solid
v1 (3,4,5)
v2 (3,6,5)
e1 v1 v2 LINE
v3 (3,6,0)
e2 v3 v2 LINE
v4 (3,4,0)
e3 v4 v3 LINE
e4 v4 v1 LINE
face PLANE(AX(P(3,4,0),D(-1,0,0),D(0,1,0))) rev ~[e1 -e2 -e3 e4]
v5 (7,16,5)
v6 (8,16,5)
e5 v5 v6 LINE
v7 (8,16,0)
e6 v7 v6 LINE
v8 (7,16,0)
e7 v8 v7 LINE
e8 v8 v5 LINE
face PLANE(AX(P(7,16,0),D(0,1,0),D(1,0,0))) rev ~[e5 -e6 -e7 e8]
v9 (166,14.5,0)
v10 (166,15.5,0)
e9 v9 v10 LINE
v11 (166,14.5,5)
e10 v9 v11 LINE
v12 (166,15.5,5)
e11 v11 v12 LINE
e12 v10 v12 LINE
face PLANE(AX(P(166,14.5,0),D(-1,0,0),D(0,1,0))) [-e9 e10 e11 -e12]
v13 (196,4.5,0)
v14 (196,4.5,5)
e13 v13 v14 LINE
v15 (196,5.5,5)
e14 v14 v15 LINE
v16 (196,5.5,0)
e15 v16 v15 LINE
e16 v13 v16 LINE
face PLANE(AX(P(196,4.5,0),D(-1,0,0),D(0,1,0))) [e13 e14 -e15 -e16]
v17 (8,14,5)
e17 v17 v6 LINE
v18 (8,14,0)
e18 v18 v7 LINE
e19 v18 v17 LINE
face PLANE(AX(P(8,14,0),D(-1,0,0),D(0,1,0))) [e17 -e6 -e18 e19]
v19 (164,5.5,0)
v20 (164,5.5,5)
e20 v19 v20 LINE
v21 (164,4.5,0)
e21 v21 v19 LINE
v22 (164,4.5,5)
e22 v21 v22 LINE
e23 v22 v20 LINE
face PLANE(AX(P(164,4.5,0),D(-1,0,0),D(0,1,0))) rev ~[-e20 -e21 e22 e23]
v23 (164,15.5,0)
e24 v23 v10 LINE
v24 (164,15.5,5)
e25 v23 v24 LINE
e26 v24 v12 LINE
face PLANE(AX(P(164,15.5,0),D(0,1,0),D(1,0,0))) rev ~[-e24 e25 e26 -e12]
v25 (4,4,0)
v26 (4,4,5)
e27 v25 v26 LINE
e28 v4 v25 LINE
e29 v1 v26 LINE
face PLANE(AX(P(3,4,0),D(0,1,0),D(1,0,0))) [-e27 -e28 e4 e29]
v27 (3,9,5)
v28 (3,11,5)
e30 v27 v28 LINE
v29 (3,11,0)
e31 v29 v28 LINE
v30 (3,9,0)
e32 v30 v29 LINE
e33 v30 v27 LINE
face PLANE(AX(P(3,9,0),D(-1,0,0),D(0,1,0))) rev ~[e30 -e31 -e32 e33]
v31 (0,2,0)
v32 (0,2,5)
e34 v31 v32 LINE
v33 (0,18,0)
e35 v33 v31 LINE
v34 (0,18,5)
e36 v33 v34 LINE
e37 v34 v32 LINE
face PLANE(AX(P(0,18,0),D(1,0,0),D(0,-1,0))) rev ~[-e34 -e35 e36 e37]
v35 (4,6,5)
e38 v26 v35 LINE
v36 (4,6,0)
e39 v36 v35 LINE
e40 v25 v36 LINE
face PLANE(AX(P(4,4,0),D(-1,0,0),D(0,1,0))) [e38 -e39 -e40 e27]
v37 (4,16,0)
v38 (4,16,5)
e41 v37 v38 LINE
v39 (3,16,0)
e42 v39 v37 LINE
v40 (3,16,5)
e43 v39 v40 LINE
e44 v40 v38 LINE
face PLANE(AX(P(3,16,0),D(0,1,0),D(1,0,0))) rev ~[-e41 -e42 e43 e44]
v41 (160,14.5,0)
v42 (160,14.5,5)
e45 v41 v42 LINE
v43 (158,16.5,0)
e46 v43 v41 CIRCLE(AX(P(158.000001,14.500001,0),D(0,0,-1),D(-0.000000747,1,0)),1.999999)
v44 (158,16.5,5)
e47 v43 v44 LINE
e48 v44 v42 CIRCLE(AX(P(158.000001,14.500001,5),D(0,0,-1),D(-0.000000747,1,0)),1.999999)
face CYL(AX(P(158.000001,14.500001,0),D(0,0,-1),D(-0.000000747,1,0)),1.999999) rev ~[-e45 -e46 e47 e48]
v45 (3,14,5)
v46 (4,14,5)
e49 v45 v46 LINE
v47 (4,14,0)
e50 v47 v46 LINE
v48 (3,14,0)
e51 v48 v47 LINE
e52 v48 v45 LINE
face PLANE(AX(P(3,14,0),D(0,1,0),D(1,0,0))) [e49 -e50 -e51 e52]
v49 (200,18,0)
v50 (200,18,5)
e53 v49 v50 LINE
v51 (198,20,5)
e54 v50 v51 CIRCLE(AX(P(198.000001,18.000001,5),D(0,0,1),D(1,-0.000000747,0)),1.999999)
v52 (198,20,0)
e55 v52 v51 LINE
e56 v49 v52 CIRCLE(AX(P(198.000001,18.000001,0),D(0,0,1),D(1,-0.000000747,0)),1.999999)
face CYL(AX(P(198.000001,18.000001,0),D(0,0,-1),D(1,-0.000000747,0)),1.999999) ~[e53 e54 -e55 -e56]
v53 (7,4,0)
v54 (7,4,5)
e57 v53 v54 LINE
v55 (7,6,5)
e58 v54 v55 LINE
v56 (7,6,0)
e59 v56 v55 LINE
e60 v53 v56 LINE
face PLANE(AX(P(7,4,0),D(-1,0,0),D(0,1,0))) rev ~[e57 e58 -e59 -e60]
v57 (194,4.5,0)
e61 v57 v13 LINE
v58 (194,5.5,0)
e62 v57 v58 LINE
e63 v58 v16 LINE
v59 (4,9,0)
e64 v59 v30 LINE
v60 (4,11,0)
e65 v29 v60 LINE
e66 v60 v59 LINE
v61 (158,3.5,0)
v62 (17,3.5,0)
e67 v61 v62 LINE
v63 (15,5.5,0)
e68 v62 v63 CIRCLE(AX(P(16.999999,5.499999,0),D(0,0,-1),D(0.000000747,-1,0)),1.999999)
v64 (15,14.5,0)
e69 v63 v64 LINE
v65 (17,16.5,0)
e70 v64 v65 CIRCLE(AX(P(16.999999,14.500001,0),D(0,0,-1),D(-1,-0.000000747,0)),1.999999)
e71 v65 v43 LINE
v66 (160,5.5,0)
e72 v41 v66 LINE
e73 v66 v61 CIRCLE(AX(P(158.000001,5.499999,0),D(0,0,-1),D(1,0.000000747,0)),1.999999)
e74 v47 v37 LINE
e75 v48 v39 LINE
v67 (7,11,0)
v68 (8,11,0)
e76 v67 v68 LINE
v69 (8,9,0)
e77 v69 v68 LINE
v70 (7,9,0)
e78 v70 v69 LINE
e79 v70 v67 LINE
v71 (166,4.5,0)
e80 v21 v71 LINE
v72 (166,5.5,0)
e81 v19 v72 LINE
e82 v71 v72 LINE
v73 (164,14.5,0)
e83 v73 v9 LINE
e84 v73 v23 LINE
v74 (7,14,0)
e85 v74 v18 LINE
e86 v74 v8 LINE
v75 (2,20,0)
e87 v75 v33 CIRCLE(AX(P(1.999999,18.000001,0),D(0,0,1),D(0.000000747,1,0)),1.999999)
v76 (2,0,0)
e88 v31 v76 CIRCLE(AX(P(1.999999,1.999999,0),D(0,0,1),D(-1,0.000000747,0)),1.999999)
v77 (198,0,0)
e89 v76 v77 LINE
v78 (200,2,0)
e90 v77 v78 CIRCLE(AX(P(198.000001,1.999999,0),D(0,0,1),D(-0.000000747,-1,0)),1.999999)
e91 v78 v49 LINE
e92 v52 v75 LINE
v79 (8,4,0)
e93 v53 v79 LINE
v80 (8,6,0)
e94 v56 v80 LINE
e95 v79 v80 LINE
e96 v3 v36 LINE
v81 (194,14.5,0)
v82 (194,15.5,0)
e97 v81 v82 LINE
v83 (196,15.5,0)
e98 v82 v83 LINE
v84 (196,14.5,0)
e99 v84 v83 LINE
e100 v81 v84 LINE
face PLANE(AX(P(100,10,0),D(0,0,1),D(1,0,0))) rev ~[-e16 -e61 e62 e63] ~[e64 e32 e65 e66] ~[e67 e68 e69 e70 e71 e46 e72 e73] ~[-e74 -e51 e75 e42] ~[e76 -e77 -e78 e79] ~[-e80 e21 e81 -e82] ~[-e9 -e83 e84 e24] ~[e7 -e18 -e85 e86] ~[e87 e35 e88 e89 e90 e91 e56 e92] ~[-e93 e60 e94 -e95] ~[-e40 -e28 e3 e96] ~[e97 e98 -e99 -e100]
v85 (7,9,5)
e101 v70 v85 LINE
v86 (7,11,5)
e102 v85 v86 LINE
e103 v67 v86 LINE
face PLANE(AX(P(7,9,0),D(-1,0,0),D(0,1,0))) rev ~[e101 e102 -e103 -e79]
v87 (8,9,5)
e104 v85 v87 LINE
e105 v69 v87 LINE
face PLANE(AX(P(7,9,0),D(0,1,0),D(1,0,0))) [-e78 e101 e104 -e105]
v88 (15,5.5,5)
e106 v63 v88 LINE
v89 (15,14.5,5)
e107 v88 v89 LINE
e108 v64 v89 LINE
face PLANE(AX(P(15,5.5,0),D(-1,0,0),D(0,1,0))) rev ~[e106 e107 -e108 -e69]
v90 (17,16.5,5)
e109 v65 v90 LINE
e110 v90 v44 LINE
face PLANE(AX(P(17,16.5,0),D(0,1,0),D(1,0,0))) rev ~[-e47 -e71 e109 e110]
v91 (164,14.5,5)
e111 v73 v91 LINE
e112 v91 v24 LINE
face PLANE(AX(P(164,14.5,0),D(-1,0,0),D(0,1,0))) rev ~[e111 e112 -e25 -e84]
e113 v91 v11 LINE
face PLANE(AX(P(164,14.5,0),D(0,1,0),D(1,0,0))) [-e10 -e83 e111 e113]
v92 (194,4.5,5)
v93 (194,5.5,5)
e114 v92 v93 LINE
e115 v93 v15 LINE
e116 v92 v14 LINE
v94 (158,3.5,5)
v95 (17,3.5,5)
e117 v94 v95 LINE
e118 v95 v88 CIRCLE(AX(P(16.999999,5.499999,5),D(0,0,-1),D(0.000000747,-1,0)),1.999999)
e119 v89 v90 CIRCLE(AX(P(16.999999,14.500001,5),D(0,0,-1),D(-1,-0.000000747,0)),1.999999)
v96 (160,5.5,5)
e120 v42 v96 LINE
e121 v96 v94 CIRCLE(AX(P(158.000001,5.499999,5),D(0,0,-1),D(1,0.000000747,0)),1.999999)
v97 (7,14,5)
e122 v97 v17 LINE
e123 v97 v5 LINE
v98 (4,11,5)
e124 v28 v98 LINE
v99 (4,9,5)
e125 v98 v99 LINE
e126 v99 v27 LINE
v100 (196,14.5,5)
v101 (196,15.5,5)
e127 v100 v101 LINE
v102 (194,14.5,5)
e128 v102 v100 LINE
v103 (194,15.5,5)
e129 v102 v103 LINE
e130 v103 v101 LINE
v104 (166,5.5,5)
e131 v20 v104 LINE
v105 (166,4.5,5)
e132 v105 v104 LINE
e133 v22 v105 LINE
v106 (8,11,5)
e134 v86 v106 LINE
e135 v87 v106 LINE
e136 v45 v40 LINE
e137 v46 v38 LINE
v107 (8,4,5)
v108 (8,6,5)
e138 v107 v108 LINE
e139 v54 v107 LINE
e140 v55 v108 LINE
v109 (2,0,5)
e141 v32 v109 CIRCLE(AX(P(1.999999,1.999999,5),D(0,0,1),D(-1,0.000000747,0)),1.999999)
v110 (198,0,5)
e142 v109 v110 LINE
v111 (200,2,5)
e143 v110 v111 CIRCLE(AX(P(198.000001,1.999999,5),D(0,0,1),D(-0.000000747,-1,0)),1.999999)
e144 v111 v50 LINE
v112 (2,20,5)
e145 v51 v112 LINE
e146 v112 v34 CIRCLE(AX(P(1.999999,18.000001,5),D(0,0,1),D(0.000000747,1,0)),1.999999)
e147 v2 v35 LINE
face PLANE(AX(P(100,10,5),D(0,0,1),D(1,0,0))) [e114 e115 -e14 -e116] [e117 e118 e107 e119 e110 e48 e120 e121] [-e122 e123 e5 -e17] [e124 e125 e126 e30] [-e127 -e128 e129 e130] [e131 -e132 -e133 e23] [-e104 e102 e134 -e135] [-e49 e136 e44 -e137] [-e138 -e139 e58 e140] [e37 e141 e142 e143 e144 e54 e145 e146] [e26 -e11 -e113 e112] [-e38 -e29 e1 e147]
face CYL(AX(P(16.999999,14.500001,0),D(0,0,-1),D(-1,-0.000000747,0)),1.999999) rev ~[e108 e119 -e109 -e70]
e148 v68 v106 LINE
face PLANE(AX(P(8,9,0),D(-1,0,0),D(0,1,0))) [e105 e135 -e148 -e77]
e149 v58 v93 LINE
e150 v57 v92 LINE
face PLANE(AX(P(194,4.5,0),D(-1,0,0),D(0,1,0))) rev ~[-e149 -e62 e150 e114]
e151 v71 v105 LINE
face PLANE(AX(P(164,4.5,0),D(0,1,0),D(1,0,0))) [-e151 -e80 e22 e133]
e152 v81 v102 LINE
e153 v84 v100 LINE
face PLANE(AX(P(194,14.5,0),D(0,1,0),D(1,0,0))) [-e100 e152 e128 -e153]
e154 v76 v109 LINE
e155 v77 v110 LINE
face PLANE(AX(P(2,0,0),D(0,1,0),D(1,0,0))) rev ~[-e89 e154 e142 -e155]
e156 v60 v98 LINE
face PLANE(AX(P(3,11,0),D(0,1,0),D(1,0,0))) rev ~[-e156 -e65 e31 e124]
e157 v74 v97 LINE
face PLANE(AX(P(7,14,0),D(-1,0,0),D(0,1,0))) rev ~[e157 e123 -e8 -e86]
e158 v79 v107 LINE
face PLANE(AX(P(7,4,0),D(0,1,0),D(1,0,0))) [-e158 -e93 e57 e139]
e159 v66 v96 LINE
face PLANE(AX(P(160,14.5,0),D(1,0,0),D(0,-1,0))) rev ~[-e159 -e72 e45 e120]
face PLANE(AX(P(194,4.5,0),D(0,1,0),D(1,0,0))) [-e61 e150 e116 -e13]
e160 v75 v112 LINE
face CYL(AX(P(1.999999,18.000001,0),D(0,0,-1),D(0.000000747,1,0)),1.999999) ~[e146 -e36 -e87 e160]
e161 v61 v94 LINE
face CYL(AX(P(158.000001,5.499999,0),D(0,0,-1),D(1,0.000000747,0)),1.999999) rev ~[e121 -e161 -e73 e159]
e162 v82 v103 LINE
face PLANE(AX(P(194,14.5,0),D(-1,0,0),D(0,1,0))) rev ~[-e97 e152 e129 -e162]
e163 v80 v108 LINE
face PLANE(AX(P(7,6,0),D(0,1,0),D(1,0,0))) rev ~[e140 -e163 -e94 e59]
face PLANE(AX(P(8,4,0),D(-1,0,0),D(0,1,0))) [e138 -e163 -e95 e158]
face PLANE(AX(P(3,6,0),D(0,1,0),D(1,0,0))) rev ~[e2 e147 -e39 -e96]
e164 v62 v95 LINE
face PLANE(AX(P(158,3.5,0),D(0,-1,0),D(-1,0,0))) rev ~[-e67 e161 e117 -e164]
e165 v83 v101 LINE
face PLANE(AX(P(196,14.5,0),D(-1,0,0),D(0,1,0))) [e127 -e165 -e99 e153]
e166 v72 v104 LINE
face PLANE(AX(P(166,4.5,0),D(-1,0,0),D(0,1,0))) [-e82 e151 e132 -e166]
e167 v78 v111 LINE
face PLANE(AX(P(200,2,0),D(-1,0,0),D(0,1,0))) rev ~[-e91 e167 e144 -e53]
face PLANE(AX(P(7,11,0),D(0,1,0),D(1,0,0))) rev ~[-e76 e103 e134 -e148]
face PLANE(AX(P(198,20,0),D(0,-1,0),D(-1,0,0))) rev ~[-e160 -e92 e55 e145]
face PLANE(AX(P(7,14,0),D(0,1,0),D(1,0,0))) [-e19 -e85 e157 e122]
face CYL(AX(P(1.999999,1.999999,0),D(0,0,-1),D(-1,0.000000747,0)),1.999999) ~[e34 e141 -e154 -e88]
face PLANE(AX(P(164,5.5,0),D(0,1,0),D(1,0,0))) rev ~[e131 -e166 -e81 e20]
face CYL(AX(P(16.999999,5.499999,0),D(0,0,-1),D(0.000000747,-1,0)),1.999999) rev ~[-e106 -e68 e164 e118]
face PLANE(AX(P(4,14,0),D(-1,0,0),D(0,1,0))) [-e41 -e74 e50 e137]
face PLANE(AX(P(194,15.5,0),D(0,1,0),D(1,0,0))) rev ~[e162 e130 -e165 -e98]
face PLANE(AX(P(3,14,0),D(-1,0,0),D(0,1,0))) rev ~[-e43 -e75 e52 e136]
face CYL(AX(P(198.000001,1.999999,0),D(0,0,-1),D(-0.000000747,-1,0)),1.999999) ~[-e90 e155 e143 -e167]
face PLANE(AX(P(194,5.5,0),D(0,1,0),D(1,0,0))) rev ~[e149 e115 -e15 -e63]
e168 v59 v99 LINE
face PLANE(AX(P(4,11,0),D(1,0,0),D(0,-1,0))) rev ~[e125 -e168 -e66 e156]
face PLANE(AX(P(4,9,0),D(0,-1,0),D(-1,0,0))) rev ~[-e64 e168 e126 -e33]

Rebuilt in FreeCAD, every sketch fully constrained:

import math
import FreeCAD as App
import Part
import Sketcher
Q = App.Units.Quantity


def add_polygon(sketch, points):
    """Adds a closed chain of lines whose ends are joined by coincident constraints."""
    first, n = sketch.GeometryCount, len(points)
    for a, b in zip(points, points[1:] + points[:1]):
        sketch.addGeometry(Part.LineSegment(App.Vector(*a, 0), App.Vector(*b, 0)), False)
    for i in range(n):
        sketch.addConstraint(Sketcher.Constraint("Coincident", first + i, 2, first + (i + 1) % n, 1))

doc = App.newDocument("Part")
body = doc.addObject("PartDesign::Body", "Body")

# Sketch on XY plane
sketch1 = doc.addObject("Sketcher::SketchObject", "Sketch")
body.addObject(sketch1)
sketch1.AttachmentSupport = (doc.XY_Plane, [""])
sketch1.MapMode = "FlatFace"
sketch1.addGeometry(Part.ArcOfCircle(Part.Circle(App.Vector(2, 2, 0), App.Vector(0, 0, 1), 2), math.radians(180), math.radians(270)), False)  # 0
sketch1.addGeometry(Part.LineSegment(App.Vector(2, 0, 0), App.Vector(198, 0, 0)), False)  # 1
sketch1.addGeometry(Part.ArcOfCircle(Part.Circle(App.Vector(198, 2, 0), App.Vector(0, 0, 1), 2), math.radians(-90), math.radians(0)), False)  # 2
sketch1.addGeometry(Part.LineSegment(App.Vector(200, 2, 0), App.Vector(200, 18, 0)), False)  # 3
sketch1.addGeometry(Part.ArcOfCircle(Part.Circle(App.Vector(198, 18, 0), App.Vector(0, 0, 1), 2), math.radians(0), math.radians(90)), False)  # 4
sketch1.addGeometry(Part.LineSegment(App.Vector(198, 20, 0), App.Vector(2, 20, 0)), False)  # 5
sketch1.addGeometry(Part.ArcOfCircle(Part.Circle(App.Vector(2, 18, 0), App.Vector(0, 0, 1), 2), math.radians(90), math.radians(180)), False)  # 6
sketch1.addGeometry(Part.LineSegment(App.Vector(0, 18, 0), App.Vector(0, 2, 0)), False)  # 7
add_polygon(sketch1, [(4, 4), (3, 4), (3, 6), (4, 6)])  # lines 8-11
add_polygon(sketch1, [(8, 4), (7, 4), (7, 6), (8, 6)])  # lines 12-15
add_polygon(sketch1, [(166, 4.5), (164, 4.5), (164, 5.5), (166, 5.5)])  # lines 16-19
add_polygon(sketch1, [(196, 4.5), (194, 4.5), (194, 5.5), (196, 5.5)])  # lines 20-23
add_polygon(sketch1, [(3, 9), (3, 11), (4, 11), (4, 9)])  # lines 24-27
add_polygon(sketch1, [(8, 9), (7, 9), (7, 11), (8, 11)])  # lines 28-31
sketch1.addGeometry(Part.ArcOfCircle(Part.Circle(App.Vector(17, 14.5, 0), App.Vector(0, 0, 1), 2), math.radians(90), math.radians(180)), False)  # 32
sketch1.addGeometry(Part.LineSegment(App.Vector(17, 16.5, 0), App.Vector(158, 16.5, 0)), False)  # 33
sketch1.addGeometry(Part.ArcOfCircle(Part.Circle(App.Vector(158, 14.5, 0), App.Vector(0, 0, 1), 2), math.radians(0), math.radians(90)), False)  # 34
sketch1.addGeometry(Part.LineSegment(App.Vector(160, 14.5, 0), App.Vector(160, 5.5, 0)), False)  # 35
sketch1.addGeometry(Part.ArcOfCircle(Part.Circle(App.Vector(158, 5.5, 0), App.Vector(0, 0, 1), 2), math.radians(-90), math.radians(0)), False)  # 36
sketch1.addGeometry(Part.LineSegment(App.Vector(158, 3.5, 0), App.Vector(17, 3.5, 0)), False)  # 37
sketch1.addGeometry(Part.ArcOfCircle(Part.Circle(App.Vector(17, 5.5, 0), App.Vector(0, 0, 1), 2), math.radians(180), math.radians(270)), False)  # 38
sketch1.addGeometry(Part.LineSegment(App.Vector(15, 5.5, 0), App.Vector(15, 14.5, 0)), False)  # 39
add_polygon(sketch1, [(4, 14), (3, 14), (3, 16), (4, 16)])  # lines 40-43
add_polygon(sketch1, [(8, 14), (7, 14), (7, 16), (8, 16)])  # lines 44-47
add_polygon(sketch1, [(166, 14.5), (164, 14.5), (164, 15.5), (166, 15.5)])  # lines 48-51
add_polygon(sketch1, [(196, 14.5), (194, 14.5), (194, 15.5), (196, 15.5)])  # lines 52-55
sketch1.addConstraint([
    Sketcher.Constraint("Tangent", 0, 2, 1, 1),
    Sketcher.Constraint("Tangent", 1, 2, 2, 1),
    Sketcher.Constraint("Tangent", 2, 2, 3, 1),
    Sketcher.Constraint("Tangent", 3, 2, 4, 1),
    Sketcher.Constraint("Tangent", 4, 2, 5, 1),
    Sketcher.Constraint("Tangent", 5, 2, 6, 1),
    Sketcher.Constraint("Tangent", 6, 2, 7, 1),
    Sketcher.Constraint("Tangent", 7, 2, 0, 1),
    Sketcher.Constraint("Tangent", 32, 1, 33, 1),
    Sketcher.Constraint("Tangent", 33, 2, 34, 2),
    Sketcher.Constraint("Tangent", 34, 1, 35, 1),
    Sketcher.Constraint("Tangent", 35, 2, 36, 2),
    Sketcher.Constraint("Tangent", 36, 1, 37, 1),
    Sketcher.Constraint("Tangent", 37, 2, 38, 2),
    Sketcher.Constraint("Tangent", 38, 1, 39, 1),
    Sketcher.Constraint("Tangent", 39, 2, 32, 2),
    Sketcher.Constraint("Horizontal", 1),
    Sketcher.Constraint("Vertical", 3),
    Sketcher.Constraint("Horizontal", 5),
    Sketcher.Constraint("Vertical", 7),
    Sketcher.Constraint("Horizontal", 8),
    Sketcher.Constraint("Vertical", 9),
    Sketcher.Constraint("Horizontal", 10),
    Sketcher.Constraint("Vertical", 11),
    Sketcher.Constraint("Horizontal", 12),
    Sketcher.Constraint("Vertical", 13),
    Sketcher.Constraint("Horizontal", 14),
    Sketcher.Constraint("Vertical", 15),
    Sketcher.Constraint("Horizontal", 16),
    Sketcher.Constraint("Vertical", 17),
    Sketcher.Constraint("Horizontal", 18),
    Sketcher.Constraint("Vertical", 19),
    Sketcher.Constraint("Horizontal", 20),
    Sketcher.Constraint("Vertical", 21),
    Sketcher.Constraint("Horizontal", 22),
    Sketcher.Constraint("Vertical", 23),
    Sketcher.Constraint("Vertical", 24),
    Sketcher.Constraint("Horizontal", 25),
    Sketcher.Constraint("Vertical", 26),
    Sketcher.Constraint("Horizontal", 27),
    Sketcher.Constraint("Horizontal", 28),
    Sketcher.Constraint("Vertical", 29),
    Sketcher.Constraint("Horizontal", 30),
    Sketcher.Constraint("Vertical", 31),
    Sketcher.Constraint("Horizontal", 33),
    Sketcher.Constraint("Vertical", 35),
    Sketcher.Constraint("Horizontal", 37),
    Sketcher.Constraint("Vertical", 39),
    Sketcher.Constraint("Horizontal", 40),
    Sketcher.Constraint("Vertical", 41),
    Sketcher.Constraint("Horizontal", 42),
    Sketcher.Constraint("Vertical", 43),
    Sketcher.Constraint("Horizontal", 44),
    Sketcher.Constraint("Vertical", 45),
    Sketcher.Constraint("Horizontal", 46),
    Sketcher.Constraint("Vertical", 47),
    Sketcher.Constraint("Horizontal", 48),
    Sketcher.Constraint("Vertical", 49),
    Sketcher.Constraint("Horizontal", 50),
    Sketcher.Constraint("Vertical", 51),
    Sketcher.Constraint("Horizontal", 52),
    Sketcher.Constraint("Vertical", 53),
    Sketcher.Constraint("Horizontal", 54),
    Sketcher.Constraint("Vertical", 55),
    Sketcher.Constraint("Equal", 0, 2),
    Sketcher.Constraint("Equal", 2, 4),
    Sketcher.Constraint("Equal", 4, 6),
    Sketcher.Constraint("Equal", 6, 32),
    Sketcher.Constraint("Equal", 32, 34),
    Sketcher.Constraint("Equal", 34, 36),
    Sketcher.Constraint("Equal", 36, 38),
    Sketcher.Constraint("PointOnObject", 0, 2, -1),
    Sketcher.Constraint("PointOnObject", 6, 2, -2),
    Sketcher.Constraint("Horizontal", 11, 2, 12, 2),
    Sketcher.Constraint("Horizontal", 10, 2, 13, 2),
    Sketcher.Constraint("Horizontal", 38, 3, 17, 2),
    Sketcher.Constraint("Horizontal", 19, 2, 20, 2),
    Sketcher.Constraint("Horizontal", 18, 2, 21, 2),
    Sketcher.Constraint("Horizontal", 27, 2, 28, 2),
    Sketcher.Constraint("Horizontal", 25, 2, 29, 2),
    Sketcher.Constraint("Horizontal", 43, 2, 44, 2),
    Sketcher.Constraint("Horizontal", 42, 2, 45, 2),
    Sketcher.Constraint("Horizontal", 39, 2, 48, 2),
    Sketcher.Constraint("Horizontal", 51, 2, 52, 2),
    Sketcher.Constraint("Horizontal", 50, 2, 53, 2),
    Sketcher.Constraint("Vertical", 9, 2, 24, 2),
    Sketcher.Constraint("Vertical", 11, 2, 25, 2),
    Sketcher.Constraint("Vertical", 13, 2, 28, 2),
    Sketcher.Constraint("Vertical", 15, 2, 30, 2),
    Sketcher.Constraint("Vertical", 27, 2, 40, 2),
    Sketcher.Constraint("Vertical", 26, 2, 42, 2),
    Sketcher.Constraint("Vertical", 29, 2, 44, 2),
    Sketcher.Constraint("Vertical", 31, 2, 46, 2),
    Sketcher.Constraint("Vertical", 17, 2, 48, 2),
    Sketcher.Constraint("Vertical", 19, 2, 50, 2),
    Sketcher.Constraint("Vertical", 21, 2, 52, 2),
    Sketcher.Constraint("Vertical", 23, 2, 54, 2),
    Sketcher.Constraint("Equal", 10, 12),
    Sketcher.Constraint("Equal", 18, 20),
    Sketcher.Constraint("Equal", 54, 9),
    Sketcher.Constraint("Equal", 46, 17),
    Sketcher.Constraint("Equal", 15, 24),
    Sketcher.Constraint("Equal", 31, 41),
    Sketcher.Constraint("Equal", 23, 49),
    Sketcher.Constraint("Radius", 0, Q("1.999999 mm")),
    Sketcher.Constraint("DistanceX", 1, 1, 1, 2, Q("196 mm")),
    Sketcher.Constraint("DistanceX", 8, 2, 8, 1, Q("1 mm")),
    Sketcher.Constraint("DistanceX", 16, 2, 16, 1, Q("2 mm")),
    Sketcher.Constraint("DistanceX", 33, 1, 33, 2, Q("141 mm")),
    Sketcher.Constraint("DistanceY", 3, 1, 3, 2, Q("16 mm")),
    Sketcher.Constraint("DistanceY", 35, 2, 35, 1, Q("9 mm")),
    Sketcher.Constraint("DistanceX", -1, 1, 32, 3, Q("16.999999 mm")),
    Sketcher.Constraint("DistanceX", -1, 1, 8, 2, Q("3 mm")),
    Sketcher.Constraint("DistanceY", -1, 1, 8, 2, Q("4 mm")),
    Sketcher.Constraint("DistanceX", -1, 1, 12, 2, Q("7 mm")),
    Sketcher.Constraint("DistanceX", -1, 1, 16, 2, Q("164 mm")),
    Sketcher.Constraint("DistanceX", -1, 1, 20, 2, Q("194 mm")),
    Sketcher.Constraint("DistanceY", -1, 1, 24, 2, Q("11 mm")),
    Sketcher.Constraint("DistanceY", -1, 1, 40, 2, Q("14 mm")),
    Sketcher.Constraint("DistanceY", -1, 1, 32, 3, Q("14.500001 mm")),
])
pad1 = doc.addObject("PartDesign::Pad", "Pad")
body.addObject(pad1)
pad1.Profile = sketch1
pad1.Length = 5

doc.recompute()
